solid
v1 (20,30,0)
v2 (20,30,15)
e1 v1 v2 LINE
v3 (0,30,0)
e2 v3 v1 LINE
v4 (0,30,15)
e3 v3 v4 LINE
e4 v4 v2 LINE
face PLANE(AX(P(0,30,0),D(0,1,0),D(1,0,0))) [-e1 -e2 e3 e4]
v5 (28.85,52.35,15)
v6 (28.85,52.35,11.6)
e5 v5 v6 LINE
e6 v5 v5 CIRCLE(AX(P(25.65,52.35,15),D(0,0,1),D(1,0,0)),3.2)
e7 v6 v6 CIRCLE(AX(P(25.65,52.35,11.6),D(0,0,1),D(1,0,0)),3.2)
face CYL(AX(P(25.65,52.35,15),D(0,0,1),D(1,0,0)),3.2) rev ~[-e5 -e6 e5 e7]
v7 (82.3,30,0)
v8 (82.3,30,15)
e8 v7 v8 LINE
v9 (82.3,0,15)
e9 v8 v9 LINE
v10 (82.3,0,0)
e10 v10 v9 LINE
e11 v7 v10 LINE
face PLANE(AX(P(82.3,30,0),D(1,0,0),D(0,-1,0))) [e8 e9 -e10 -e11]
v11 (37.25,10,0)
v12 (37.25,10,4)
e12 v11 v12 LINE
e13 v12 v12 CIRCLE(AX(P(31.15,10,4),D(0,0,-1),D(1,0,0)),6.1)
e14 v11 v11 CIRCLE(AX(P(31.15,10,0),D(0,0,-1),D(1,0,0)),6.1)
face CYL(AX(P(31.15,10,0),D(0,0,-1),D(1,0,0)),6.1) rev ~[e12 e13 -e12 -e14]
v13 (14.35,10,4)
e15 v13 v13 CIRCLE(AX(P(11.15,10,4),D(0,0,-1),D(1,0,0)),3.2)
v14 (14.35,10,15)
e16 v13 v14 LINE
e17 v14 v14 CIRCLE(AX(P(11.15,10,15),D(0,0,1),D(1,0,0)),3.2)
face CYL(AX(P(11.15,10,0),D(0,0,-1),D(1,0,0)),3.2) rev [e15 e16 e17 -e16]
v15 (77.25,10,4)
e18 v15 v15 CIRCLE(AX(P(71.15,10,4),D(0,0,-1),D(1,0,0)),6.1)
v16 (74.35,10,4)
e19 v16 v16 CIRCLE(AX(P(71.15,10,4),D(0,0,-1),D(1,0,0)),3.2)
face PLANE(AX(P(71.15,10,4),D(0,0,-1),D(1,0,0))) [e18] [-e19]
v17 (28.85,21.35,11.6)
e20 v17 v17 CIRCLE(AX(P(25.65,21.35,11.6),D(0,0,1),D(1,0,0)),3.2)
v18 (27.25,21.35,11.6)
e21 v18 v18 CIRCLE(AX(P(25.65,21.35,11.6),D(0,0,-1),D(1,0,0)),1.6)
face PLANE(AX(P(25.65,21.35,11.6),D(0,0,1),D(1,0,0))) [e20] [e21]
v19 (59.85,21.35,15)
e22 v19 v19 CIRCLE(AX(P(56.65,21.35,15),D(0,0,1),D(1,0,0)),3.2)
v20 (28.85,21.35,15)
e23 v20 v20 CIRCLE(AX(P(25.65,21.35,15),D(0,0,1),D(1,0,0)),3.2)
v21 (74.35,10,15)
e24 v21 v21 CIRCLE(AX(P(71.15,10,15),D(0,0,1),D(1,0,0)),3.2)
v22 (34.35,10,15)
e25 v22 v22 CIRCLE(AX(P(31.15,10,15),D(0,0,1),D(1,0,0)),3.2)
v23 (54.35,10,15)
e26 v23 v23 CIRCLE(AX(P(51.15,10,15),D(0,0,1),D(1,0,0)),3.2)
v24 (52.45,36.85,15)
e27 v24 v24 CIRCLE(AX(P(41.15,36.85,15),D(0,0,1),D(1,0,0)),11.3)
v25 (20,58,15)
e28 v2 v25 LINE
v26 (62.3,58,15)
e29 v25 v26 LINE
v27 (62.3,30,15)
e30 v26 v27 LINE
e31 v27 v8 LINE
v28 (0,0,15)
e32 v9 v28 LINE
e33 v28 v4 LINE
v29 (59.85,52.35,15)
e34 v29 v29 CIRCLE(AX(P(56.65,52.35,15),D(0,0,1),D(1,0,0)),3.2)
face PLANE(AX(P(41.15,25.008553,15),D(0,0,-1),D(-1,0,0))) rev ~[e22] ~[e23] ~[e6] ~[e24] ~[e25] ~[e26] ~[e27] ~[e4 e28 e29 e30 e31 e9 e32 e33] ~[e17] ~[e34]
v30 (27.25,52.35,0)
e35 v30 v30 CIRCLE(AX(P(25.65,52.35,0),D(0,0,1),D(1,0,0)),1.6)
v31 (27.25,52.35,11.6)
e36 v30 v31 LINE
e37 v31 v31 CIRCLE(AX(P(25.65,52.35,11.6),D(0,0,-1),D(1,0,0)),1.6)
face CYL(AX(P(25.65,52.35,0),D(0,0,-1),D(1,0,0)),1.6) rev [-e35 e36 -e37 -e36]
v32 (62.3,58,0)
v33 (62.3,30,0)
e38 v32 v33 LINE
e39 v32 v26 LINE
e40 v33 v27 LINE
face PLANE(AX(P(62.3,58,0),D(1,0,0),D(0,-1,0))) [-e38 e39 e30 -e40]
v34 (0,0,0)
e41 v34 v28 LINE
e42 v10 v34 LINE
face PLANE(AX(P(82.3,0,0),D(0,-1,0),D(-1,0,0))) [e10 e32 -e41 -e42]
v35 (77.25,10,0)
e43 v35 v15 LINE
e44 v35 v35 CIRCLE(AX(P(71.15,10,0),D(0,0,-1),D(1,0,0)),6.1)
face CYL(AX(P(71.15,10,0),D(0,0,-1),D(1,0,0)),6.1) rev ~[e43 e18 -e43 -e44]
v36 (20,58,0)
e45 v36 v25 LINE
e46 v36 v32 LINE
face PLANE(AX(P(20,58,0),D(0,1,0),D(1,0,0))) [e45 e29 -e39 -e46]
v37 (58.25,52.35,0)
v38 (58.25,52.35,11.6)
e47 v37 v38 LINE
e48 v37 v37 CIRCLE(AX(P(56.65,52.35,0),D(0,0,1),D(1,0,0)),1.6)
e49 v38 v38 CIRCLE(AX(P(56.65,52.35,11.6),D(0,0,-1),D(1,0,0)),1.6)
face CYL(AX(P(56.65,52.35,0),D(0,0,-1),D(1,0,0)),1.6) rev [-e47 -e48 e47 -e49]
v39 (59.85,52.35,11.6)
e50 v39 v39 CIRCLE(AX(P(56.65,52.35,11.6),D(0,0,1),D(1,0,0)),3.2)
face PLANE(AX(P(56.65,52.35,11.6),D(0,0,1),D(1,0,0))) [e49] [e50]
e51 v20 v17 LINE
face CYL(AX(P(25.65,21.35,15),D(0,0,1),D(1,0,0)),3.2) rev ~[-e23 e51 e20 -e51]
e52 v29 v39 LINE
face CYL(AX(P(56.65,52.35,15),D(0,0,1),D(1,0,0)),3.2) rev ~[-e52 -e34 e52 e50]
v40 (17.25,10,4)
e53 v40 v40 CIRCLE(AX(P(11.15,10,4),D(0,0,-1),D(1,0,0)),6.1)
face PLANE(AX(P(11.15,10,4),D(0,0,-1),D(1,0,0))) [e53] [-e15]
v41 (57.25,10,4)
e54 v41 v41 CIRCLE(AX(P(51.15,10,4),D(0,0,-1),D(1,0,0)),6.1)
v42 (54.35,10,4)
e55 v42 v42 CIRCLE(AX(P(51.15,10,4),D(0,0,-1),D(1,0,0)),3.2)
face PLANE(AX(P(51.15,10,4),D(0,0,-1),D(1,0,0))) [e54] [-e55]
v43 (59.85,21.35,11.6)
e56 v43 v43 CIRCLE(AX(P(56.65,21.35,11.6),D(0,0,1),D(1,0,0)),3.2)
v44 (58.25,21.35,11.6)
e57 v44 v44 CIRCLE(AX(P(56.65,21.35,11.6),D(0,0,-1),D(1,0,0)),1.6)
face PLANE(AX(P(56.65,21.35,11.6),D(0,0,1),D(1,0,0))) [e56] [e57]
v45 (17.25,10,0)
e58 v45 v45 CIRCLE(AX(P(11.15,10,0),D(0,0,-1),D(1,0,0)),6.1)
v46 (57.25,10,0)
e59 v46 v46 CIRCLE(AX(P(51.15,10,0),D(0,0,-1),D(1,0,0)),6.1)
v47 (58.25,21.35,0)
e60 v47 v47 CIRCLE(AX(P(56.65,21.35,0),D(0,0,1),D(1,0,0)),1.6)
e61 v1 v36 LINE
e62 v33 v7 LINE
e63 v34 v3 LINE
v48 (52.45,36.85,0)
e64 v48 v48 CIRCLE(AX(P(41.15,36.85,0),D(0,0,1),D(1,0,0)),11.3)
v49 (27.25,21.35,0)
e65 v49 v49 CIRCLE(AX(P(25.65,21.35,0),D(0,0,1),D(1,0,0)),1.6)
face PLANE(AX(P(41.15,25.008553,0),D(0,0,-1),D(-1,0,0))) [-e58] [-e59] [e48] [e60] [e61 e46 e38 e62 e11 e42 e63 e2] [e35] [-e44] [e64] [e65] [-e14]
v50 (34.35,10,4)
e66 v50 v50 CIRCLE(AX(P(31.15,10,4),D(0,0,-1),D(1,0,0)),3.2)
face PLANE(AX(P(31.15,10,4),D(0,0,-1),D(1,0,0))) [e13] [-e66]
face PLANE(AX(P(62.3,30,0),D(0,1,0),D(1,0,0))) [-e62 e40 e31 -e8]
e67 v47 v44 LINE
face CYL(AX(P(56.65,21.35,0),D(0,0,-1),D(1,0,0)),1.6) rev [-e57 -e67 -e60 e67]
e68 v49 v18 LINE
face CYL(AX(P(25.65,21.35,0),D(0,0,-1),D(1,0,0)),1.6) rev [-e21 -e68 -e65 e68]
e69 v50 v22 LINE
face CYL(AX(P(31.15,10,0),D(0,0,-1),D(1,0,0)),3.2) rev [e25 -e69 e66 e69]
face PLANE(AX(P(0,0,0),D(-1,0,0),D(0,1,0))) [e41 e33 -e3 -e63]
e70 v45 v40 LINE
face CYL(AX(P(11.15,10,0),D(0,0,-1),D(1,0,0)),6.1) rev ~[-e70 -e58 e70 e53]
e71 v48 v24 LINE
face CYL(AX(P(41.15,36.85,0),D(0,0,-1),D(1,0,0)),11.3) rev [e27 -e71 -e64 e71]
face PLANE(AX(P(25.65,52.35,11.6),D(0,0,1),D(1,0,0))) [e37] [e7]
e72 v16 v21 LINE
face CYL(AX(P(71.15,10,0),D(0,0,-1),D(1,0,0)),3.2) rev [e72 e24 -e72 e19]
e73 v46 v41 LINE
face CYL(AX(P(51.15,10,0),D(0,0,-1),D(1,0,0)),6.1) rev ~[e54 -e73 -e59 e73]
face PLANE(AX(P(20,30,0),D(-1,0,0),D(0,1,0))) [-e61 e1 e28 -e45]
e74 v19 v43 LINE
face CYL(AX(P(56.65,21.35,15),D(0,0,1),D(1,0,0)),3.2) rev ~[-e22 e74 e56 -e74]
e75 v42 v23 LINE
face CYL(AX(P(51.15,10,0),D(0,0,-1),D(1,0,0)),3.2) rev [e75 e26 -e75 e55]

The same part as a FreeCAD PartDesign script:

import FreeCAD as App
import Part
import Sketcher
from FreeCAD import Vector


def add_polygon(sketch, points):
    """Adds a closed chain of lines whose ends are joined by coincident constraints."""
    first, n = sketch.GeometryCount, len(points)
    for a, b in zip(points, points[1:] + points[:1]):
        sketch.addGeometry(Part.LineSegment(App.Vector(*a, 0), App.Vector(*b, 0)), False)
    for i in range(n):
        sketch.addConstraint(Sketcher.Constraint("Coincident", first + i, 2, first + (i + 1) % n, 1))

doc = App.newDocument("Part")
body = doc.addObject("PartDesign::Body", "Body")

# Sketch on XY plane
sketch1 = body.newObject("Sketcher::SketchObject", "Sketch")
sketch1.AttachmentSupport = (doc.getObject("XY_Plane"), [""])
sketch1.MapMode = "FlatFace"
add_polygon(sketch1, [(20, 58), (20, 30), (0, 30), (0, 0), (82.3, 0), (82.3, 30), (62.3, 30), (62.3, 58)])  # lines 0-7
sketch1.addGeometry(Part.Circle(Vector(71.15, 10, 0), Vector(0, 0, 1), 3.2), False)  # 8
sketch1.addGeometry(Part.Circle(Vector(51.15, 10, 0), Vector(0, 0, 1), 3.2), False)  # 9
sketch1.addGeometry(Part.Circle(Vector(56.65, 21.35, 0), Vector(0, 0, 1), 1.6), False)  # 10
sketch1.addGeometry(Part.Circle(Vector(31.15, 10, 0), Vector(0, 0, 1), 3.2), False)  # 11
sketch1.addGeometry(Part.Circle(Vector(11.15, 10, 0), Vector(0, 0, 1), 3.2), False)  # 12
sketch1.addGeometry(Part.Circle(Vector(25.65, 21.35, 0), Vector(0, 0, 1), 1.6), False)  # 13
sketch1.addGeometry(Part.Circle(Vector(56.65, 52.35, 0), Vector(0, 0, 1), 1.6), False)  # 14
sketch1.addGeometry(Part.Circle(Vector(41.15, 36.85, 0), Vector(0, 0, 1), 11.3), False)  # 15
sketch1.addGeometry(Part.Circle(Vector(25.65, 52.35, 0), Vector(0, 0, 1), 1.6), False)  # 16
sketch1.addConstraint(Sketcher.Constraint("Vertical", 0))
sketch1.addConstraint(Sketcher.Constraint("Horizontal", 1))
sketch1.addConstraint(Sketcher.Constraint("Vertical", 2))
sketch1.addConstraint(Sketcher.Constraint("Horizontal", 3))
sketch1.addConstraint(Sketcher.Constraint("Vertical", 4))
sketch1.addConstraint(Sketcher.Constraint("Horizontal", 5))
sketch1.addConstraint(Sketcher.Constraint("Vertical", 6))
sketch1.addConstraint(Sketcher.Constraint("Horizontal", 7))
sketch1.addConstraint(Sketcher.Constraint("Coincident", 2, 2, -1, 1))
sketch1.addConstraint(Sketcher.Constraint("Equal", 8, 9))
sketch1.addConstraint(Sketcher.Constraint("Equal", 9, 11))
sketch1.addConstraint(Sketcher.Constraint("Equal", 11, 12))
sketch1.addConstraint(Sketcher.Constraint("Equal", 10, 13))
sketch1.addConstraint(Sketcher.Constraint("Equal", 13, 14))
sketch1.addConstraint(Sketcher.Constraint("Equal", 14, 16))
sketch1.addConstraint(Sketcher.Constraint("Horizontal", 8, 3, 9, 3))
sketch1.addConstraint(Sketcher.Constraint("Horizontal", 9, 3, 11, 3))
sketch1.addConstraint(Sketcher.Constraint("Horizontal", 11, 3, 12, 3))
sketch1.addConstraint(Sketcher.Constraint("Horizontal", 10, 3, 13, 3))
sketch1.addConstraint(Sketcher.Constraint("Horizontal", 14, 3, 16, 3))
sketch1.addConstraint(Sketcher.Constraint("Horizontal", 1, 2, 4, 2))
sketch1.addConstraint(Sketcher.Constraint("Vertical", 10, 3, 14, 3))
sketch1.addConstraint(Sketcher.Constraint("Vertical", 13, 3, 16, 3))
sketch1.addConstraint(Sketcher.Constraint("Equal", 1, 5))
sketch1.addConstraint(Sketcher.Constraint("Diameter", 8, 6.4))
sketch1.addConstraint(Sketcher.Constraint("Diameter", 10, 3.2))
sketch1.addConstraint(Sketcher.Constraint("Diameter", 15, 22.6))
sketch1.addConstraint(Sketcher.Constraint("DistanceX", 1, 2, 1, 1, 20.0))
sketch1.addConstraint(Sketcher.Constraint("DistanceY", 0, 2, 0, 1, 28.0))
sketch1.addConstraint(Sketcher.Constraint("DistanceY", 2, 2, 2, 1, 30.0))
sketch1.addConstraint(Sketcher.Constraint("DistanceX", 3, 1, 3, 2, 82.3))
sketch1.addConstraint(Sketcher.Constraint("DistanceY", -1, 1, 8, 3, 10.0))
sketch1.addConstraint(Sketcher.Constraint("DistanceX", 9, 3, 8, 3, 20.0))
sketch1.addConstraint(Sketcher.Constraint("DistanceX", 11, 3, 9, 3, 20.0))
sketch1.addConstraint(Sketcher.Constraint("DistanceX", 12, 3, 11, 3, 20.0))
sketch1.addConstraint(Sketcher.Constraint("DistanceX", 13, 3, 10, 3, 31.0))
sketch1.addConstraint(Sketcher.Constraint("DistanceY", 10, 3, 14, 3, 31.0))
sketch1.addConstraint(Sketcher.Constraint("DistanceX", 15, 3, 9, 3, 10.0))
sketch1.addConstraint(Sketcher.Constraint("DistanceX", 9, 3, 10, 3, 5.5))
sketch1.addConstraint(Sketcher.Constraint("DistanceY", 10, 3, 15, 3, 15.5))
sketch1.addConstraint(Sketcher.Constraint("DistanceX", -1, 1, 8, 3, 71.15))
sketch1.addConstraint(Sketcher.Constraint("DistanceY", -1, 1, 10, 3, 21.35))
pad1 = body.newObject("PartDesign::Pad", "Pad")
pad1.Profile = sketch1
pad1.Length = 15

# Sketch on XY plane
sketch2 = body.newObject("Sketcher::SketchObject", "Sketch001")
sketch2.AttachmentSupport = (doc.getObject("XY_Plane"), [""])
sketch2.MapMode = "FlatFace"
sketch2.AttachmentOffset = App.Placement(Vector(0, 0, 15), App.Rotation())
sketch2.addGeometry(Part.Circle(Vector(25.65, 52.35, 0), Vector(0, 0, 1), 3.2), False)
sketch2.addGeometry(Part.Circle(Vector(56.65, 52.35, 0), Vector(0, 0, 1), 3.2), False)
sketch2.addGeometry(Part.Circle(Vector(56.65, 21.35, 0), Vector(0, 0, 1), 3.2), False)
sketch2.addGeometry(Part.Circle(Vector(25.65, 21.35, 0), Vector(0, 0, 1), 3.2), False)
sketch2.addConstraint(Sketcher.Constraint("Equal", 0, 1))
sketch2.addConstraint(Sketcher.Constraint("Equal", 1, 2))
sketch2.addConstraint(Sketcher.Constraint("Equal", 2, 3))
sketch2.addConstraint(Sketcher.Constraint("Horizontal", 0, 3, 1, 3))
sketch2.addConstraint(Sketcher.Constraint("Horizontal", 2, 3, 3, 3))
sketch2.addConstraint(Sketcher.Constraint("Vertical", 1, 3, 2, 3))
sketch2.addConstraint(Sketcher.Constraint("Vertical", 0, 3, 3, 3))
sketch2.addConstraint(Sketcher.Constraint("Diameter", 0, 6.4))
sketch2.addConstraint(Sketcher.Constraint("DistanceX", 0, 3, 1, 3, 31.0))
sketch2.addConstraint(Sketcher.Constraint("DistanceY", 2, 3, 1, 3, 31.0))
sketch2.addConstraint(Sketcher.Constraint("DistanceX", -1, 1, 0, 3, 25.65))
sketch2.addConstraint(Sketcher.Constraint("DistanceY", -1, 1, 0, 3, 52.35))
pocket1 = body.newObject("PartDesign::Pocket", "Pocket")
pocket1.Profile = sketch2
pocket1.Length = 3.4

# Sketch on XY plane
sketch3 = body.newObject("Sketcher::SketchObject", "Sketch002")
sketch3.AttachmentSupport = (doc.getObject("XY_Plane"), [""])
sketch3.MapMode = "FlatFace"
sketch3.addGeometry(Part.Circle(Vector(11.15, 10, 0), Vector(0, 0, 1), 6.1), False)
sketch3.addGeometry(Part.Circle(Vector(31.15, 10, 0), Vector(0, 0, 1), 6.1), False)
sketch3.addGeometry(Part.Circle(Vector(51.15, 10, 0), Vector(0, 0, 1), 6.1), False)
sketch3.addGeometry(Part.Circle(Vector(71.15, 10, 0), Vector(0, 0, 1), 6.1), False)
sketch3.addConstraint(Sketcher.Constraint("Equal", 0, 1))
sketch3.addConstraint(Sketcher.Constraint("Equal", 1, 2))
sketch3.addConstraint(Sketcher.Constraint("Equal", 2, 3))
sketch3.addConstraint(Sketcher.Constraint("Horizontal", 0, 3, 1, 3))
sketch3.addConstraint(Sketcher.Constraint("Horizontal", 1, 3, 2, 3))
sketch3.addConstraint(Sketcher.Constraint("Horizontal", 2, 3, 3, 3))
sketch3.addConstraint(Sketcher.Constraint("Diameter", 0, 12.2))
sketch3.addConstraint(Sketcher.Constraint("DistanceY", -1, 1, 0, 3, 10.0))
sketch3.addConstraint(Sketcher.Constraint("DistanceX", 0, 3, 1, 3, 20.0))
sketch3.addConstraint(Sketcher.Constraint("DistanceX", 1, 3, 2, 3, 20.0))
sketch3.addConstraint(Sketcher.Constraint("DistanceX", 2, 3, 3, 3, 20.0))
sketch3.addConstraint(Sketcher.Constraint("DistanceX", -1, 1, 0, 3, 11.15))
pocket2 = body.newObject("PartDesign::Pocket", "Pocket001")
pocket2.Profile = sketch3
pocket2.Length = 4
pocket2.Reversed = True

doc.recompute()
